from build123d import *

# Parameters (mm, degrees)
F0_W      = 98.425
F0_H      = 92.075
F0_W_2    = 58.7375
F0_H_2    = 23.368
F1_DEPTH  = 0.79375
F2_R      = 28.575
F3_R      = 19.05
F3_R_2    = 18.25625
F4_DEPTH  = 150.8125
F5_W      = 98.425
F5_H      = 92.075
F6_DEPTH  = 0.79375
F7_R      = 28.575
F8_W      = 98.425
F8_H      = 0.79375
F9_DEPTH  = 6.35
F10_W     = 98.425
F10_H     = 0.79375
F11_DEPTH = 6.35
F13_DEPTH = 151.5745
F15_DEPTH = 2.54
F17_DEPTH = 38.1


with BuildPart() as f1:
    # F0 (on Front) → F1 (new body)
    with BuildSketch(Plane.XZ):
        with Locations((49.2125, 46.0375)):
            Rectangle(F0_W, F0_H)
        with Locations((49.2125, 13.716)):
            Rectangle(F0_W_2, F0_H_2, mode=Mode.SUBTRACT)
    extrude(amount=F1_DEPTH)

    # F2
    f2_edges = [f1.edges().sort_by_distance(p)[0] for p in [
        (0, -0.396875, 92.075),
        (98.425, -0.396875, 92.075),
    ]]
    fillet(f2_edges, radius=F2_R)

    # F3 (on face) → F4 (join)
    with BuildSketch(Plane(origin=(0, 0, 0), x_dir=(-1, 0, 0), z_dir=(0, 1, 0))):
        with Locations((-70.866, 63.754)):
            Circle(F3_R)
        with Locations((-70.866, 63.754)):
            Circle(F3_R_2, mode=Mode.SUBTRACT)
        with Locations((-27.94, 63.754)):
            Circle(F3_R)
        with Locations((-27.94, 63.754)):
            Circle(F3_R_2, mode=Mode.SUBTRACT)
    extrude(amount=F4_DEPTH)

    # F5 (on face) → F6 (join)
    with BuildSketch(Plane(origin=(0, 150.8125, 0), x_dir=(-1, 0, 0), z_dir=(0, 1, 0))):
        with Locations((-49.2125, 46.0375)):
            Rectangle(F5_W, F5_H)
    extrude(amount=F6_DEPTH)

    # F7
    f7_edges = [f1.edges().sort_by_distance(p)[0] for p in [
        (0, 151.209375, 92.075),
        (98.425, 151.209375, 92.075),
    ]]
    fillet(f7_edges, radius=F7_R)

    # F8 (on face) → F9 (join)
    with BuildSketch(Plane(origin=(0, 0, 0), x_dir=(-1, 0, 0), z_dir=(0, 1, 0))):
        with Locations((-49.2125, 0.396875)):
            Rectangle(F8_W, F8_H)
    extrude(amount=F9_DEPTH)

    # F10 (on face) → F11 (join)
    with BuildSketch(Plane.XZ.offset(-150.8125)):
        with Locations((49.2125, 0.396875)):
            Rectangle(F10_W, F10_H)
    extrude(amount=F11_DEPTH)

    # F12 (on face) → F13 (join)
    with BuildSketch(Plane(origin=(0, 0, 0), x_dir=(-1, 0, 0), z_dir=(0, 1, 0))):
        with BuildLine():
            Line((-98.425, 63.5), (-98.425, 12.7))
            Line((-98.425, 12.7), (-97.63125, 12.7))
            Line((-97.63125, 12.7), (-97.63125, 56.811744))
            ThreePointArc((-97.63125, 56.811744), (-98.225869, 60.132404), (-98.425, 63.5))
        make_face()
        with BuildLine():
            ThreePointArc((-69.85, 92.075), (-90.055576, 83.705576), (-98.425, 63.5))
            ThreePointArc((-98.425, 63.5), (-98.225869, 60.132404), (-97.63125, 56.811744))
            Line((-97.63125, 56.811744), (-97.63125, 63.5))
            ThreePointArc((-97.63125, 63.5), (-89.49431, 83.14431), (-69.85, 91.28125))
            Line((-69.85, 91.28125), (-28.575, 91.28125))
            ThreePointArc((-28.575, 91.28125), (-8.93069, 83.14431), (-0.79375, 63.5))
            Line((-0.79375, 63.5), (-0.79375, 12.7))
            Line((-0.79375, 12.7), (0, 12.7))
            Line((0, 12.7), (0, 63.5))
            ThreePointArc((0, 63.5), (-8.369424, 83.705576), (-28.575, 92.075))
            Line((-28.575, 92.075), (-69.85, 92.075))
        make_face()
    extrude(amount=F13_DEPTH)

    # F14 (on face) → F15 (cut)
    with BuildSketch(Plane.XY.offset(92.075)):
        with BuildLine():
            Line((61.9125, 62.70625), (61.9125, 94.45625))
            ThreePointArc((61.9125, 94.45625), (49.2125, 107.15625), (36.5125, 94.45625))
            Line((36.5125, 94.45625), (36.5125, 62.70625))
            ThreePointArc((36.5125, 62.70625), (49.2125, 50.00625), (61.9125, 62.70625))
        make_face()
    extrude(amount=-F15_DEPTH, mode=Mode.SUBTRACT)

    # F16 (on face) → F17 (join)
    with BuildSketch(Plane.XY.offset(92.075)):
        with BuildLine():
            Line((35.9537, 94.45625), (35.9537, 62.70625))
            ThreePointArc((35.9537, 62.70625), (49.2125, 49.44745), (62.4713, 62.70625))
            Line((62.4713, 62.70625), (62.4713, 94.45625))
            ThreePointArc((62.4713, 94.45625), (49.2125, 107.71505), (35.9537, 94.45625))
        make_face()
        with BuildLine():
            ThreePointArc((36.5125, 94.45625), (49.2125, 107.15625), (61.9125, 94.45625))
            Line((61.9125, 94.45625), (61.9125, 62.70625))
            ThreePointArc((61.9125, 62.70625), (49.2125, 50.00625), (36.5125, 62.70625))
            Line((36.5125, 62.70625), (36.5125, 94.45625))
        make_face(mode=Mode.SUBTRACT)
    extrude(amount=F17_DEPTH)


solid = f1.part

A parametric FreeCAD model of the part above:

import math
import FreeCAD as App
import Part
import Sketcher

V = App.Vector
Q = App.Units.Quantity


def edges_at(feature, points):
    """Names of the edges that pass closest to the given points."""
    edges = feature.Shape.Edges
    near = lambda p: min(range(len(edges)), key=lambda i: edges[i].distToShape(Part.Vertex(*p))[0])
    return sorted({f"Edge{near(p) + 1}" for p in points})

doc = App.newDocument("Part")
body = doc.addObject("PartDesign::Body", "Body")

sketch1 = doc.addObject("Sketcher::SketchObject", "Sketch")
body.addObject(sketch1)
sketch1.AttachmentSupport = (doc.XZ_Plane, [""])
sketch1.MapMode = "FlatFace"
sketch1.addGeometry([
    Part.LineSegment(V(0, 92.075, 0), V(0, 0, 0)),
    Part.LineSegment(V(0, 0, 0), V(98.425, 0, 0)),
    Part.LineSegment(V(98.425, 0, 0), V(98.425, 92.075, 0)),
    Part.LineSegment(V(98.425, 92.075, 0), V(0, 92.075, 0)),
    Part.LineSegment(V(78.58125, 2.032, 0), V(19.84375, 2.032, 0)),
    Part.LineSegment(V(19.84375, 2.032, 0), V(19.84375, 25.4, 0)),
    Part.LineSegment(V(19.84375, 25.4, 0), V(78.58125, 25.4, 0)),
    Part.LineSegment(V(78.58125, 25.4, 0), V(78.58125, 2.032, 0)),
], False)
sketch1.addConstraint([
    Sketcher.Constraint("Coincident", 0, 2, 1, 1),
    Sketcher.Constraint("Coincident", 1, 2, 2, 1),
    Sketcher.Constraint("Coincident", 2, 2, 3, 1),
    Sketcher.Constraint("Coincident", 3, 2, 0, 1),
    Sketcher.Constraint("Coincident", 4, 2, 5, 1),
    Sketcher.Constraint("Coincident", 5, 2, 6, 1),
    Sketcher.Constraint("Coincident", 6, 2, 7, 1),
    Sketcher.Constraint("Coincident", 7, 2, 4, 1),
    Sketcher.Constraint("Vertical", 0),
    Sketcher.Constraint("Horizontal", 1),
    Sketcher.Constraint("Vertical", 2),
    Sketcher.Constraint("Horizontal", 3),
    Sketcher.Constraint("Horizontal", 4),
    Sketcher.Constraint("Vertical", 5),
    Sketcher.Constraint("Horizontal", 6),
    Sketcher.Constraint("Vertical", 7),
    Sketcher.Constraint("Coincident", 0, 2, -1, 1),
    Sketcher.Constraint("DistanceY", -1, 1, 5, 2, Q("1 in")),
    Sketcher.Constraint("DistanceY", 5, 1, 5, 2, Q("0.92 in")),
    Sketcher.Constraint("DistanceX", 1, 1, 1, 2, Q("3.875 in")),
    Sketcher.Constraint("DistanceX", 4, 2, 4, 1, Q("2.3125 in")),
    Sketcher.Constraint("DistanceY", 0, 2, 0, 1, Q("3.625 in")),
    Sketcher.Constraint("DistanceX", -1, 1, 4, 2, Q("0.78125 in")),
])
pad1 = doc.addObject("PartDesign::Pad", "Pad")
body.addObject(pad1)
pad1.Profile = sketch1
pad1.Length = Q("0.03125 in")
doc.recompute()

fillet = doc.addObject("PartDesign::Fillet", "Fillet")
body.addObject(fillet)
fillet.Base = (pad1, edges_at(pad1, [(0, -0.397, 92.075), (98.425, -0.397, 92.075)]))
fillet.Radius = Q("1.125 in")

sketch2 = doc.addObject("Sketcher::SketchObject", "Sketch001")
body.addObject(sketch2)
sketch2.AttachmentSupport = (doc.XZ_Plane, [""])
sketch2.MapMode = "FlatFace"
sketch2.addGeometry([
    Part.Circle(V(70.866, 63.754, 0), V(0, 0, 1), 19.05),
    Part.Circle(V(70.866, 63.754, 0), V(0, 0, 1), 18.25625),
    Part.Circle(V(27.94, 63.754, 0), V(0, 0, 1), 19.05),
    Part.Circle(V(27.94, 63.754, 0), V(0, 0, 1), 18.25625),
], False)
sketch2.addConstraint([
    Sketcher.Constraint("Coincident", 1, 3, 0, 3),
    Sketcher.Constraint("Coincident", 3, 3, 2, 3),
    Sketcher.Constraint("Equal", 0, 2),
    Sketcher.Constraint("Equal", 1, 3),
    Sketcher.Constraint("Horizontal", 1, 3, 2, 3),
    Sketcher.Constraint("Diameter", 0, Q("1.5 in")),
    Sketcher.Constraint("Diameter", 1, Q("1.4375 in")),
    Sketcher.Constraint("DistanceX", -1, 1, 2, 3, Q("1.1 in")),
    Sketcher.Constraint("DistanceX", -1, 1, 0, 3, Q("2.79 in")),
    Sketcher.Constraint("DistanceY", -1, 1, 0, 3, Q("2.51 in")),
])
pad2 = doc.addObject("PartDesign::Pad", "Pad001")
body.addObject(pad2)
pad2.Profile = sketch2
pad2.Length = Q("5.9375 in")
pad2.Reversed = True

sketch3 = doc.addObject("Sketcher::SketchObject", "Sketch002")
body.addObject(sketch3)
sketch3.AttachmentSupport = (doc.XZ_Plane, [""])
sketch3.MapMode = "FlatFace"
sketch3.AttachmentOffset = App.Placement(V(0, 0, -5.9375 * 25.4), App.Rotation())
sketch3.addGeometry([
    Part.LineSegment(V(98.425, 92.075, 0), V(98.425, 0, 0)),
    Part.LineSegment(V(98.425, 0, 0), V(0, 0, 0)),
    Part.LineSegment(V(0, 0, 0), V(0, 92.075, 0)),
    Part.LineSegment(V(0, 92.075, 0), V(98.425, 92.075, 0)),
], False)
sketch3.addConstraint([
    Sketcher.Constraint("Coincident", 0, 2, 1, 1),
    Sketcher.Constraint("Coincident", 1, 2, 2, 1),
    Sketcher.Constraint("Coincident", 2, 2, 3, 1),
    Sketcher.Constraint("Coincident", 3, 2, 0, 1),
    Sketcher.Constraint("Vertical", 0),
    Sketcher.Constraint("Horizontal", 1),
    Sketcher.Constraint("Vertical", 2),
    Sketcher.Constraint("Horizontal", 3),
    Sketcher.Constraint("Coincident", 1, 2, -1, 1),
    Sketcher.Constraint("DistanceX", 1, 2, 1, 1, Q("3.875 in")),
    Sketcher.Constraint("DistanceY", 0, 2, 0, 1, Q("3.625 in")),
])
pad3 = doc.addObject("PartDesign::Pad", "Pad002")
body.addObject(pad3)
pad3.Profile = sketch3
pad3.Length = Q("0.03125 in")
pad3.Reversed = True
doc.recompute()

fillet2 = doc.addObject("PartDesign::Fillet", "Fillet001")
body.addObject(fillet2)
fillet2.Base = (pad3, edges_at(pad3, [(0, 151.209, 92.075), (98.425, 151.209, 92.075)]))
fillet2.Radius = Q("1.125 in")

sketch4 = doc.addObject("Sketcher::SketchObject", "Sketch003")
body.addObject(sketch4)
sketch4.AttachmentSupport = (doc.XZ_Plane, [""])
sketch4.MapMode = "FlatFace"
sketch4.addGeometry([
    Part.LineSegment(V(98.425, 0.79375, 0), V(98.425, 0, 0)),
    Part.LineSegment(V(98.425, 0, 0), V(0, 0, 0)),
    Part.LineSegment(V(0, 0, 0), V(0, 0.79375, 0)),
    Part.LineSegment(V(0, 0.79375, 0), V(98.425, 0.79375, 0)),
], False)
sketch4.addConstraint([
    Sketcher.Constraint("Coincident", 0, 2, 1, 1),
    Sketcher.Constraint("Coincident", 1, 2, 2, 1),
    Sketcher.Constraint("Coincident", 2, 2, 3, 1),
    Sketcher.Constraint("Coincident", 3, 2, 0, 1),
    Sketcher.Constraint("Vertical", 0),
    Sketcher.Constraint("Horizontal", 1),
    Sketcher.Constraint("Vertical", 2),
    Sketcher.Constraint("Horizontal", 3),
    Sketcher.Constraint("Coincident", 1, 2, -1, 1),
    Sketcher.Constraint("DistanceX", 1, 2, 1, 1, Q("3.875 in")),
    Sketcher.Constraint("DistanceY", 0, 2, 0, 1, Q("0.03125 in")),
])
pad4 = doc.addObject("PartDesign::Pad", "Pad003")
body.addObject(pad4)
pad4.Profile = sketch4
pad4.Length = Q("0.25 in")
pad4.Reversed = True

sketch5 = doc.addObject("Sketcher::SketchObject", "Sketch004")
body.addObject(sketch5)
sketch5.AttachmentSupport = (doc.XZ_Plane, [""])
sketch5.MapMode = "FlatFace"
sketch5.AttachmentOffset = App.Placement(V(0, 0, -5.9375 * 25.4), App.Rotation())
sketch5.addGeometry([
    Part.LineSegment(V(0, 0.79375, 0), V(0, 0, 0)),
    Part.LineSegment(V(0, 0, 0), V(98.425, 0, 0)),
    Part.LineSegment(V(98.425, 0, 0), V(98.425, 0.79375, 0)),
    Part.LineSegment(V(98.425, 0.79375, 0), V(0, 0.79375, 0)),
], False)
sketch5.addConstraint([
    Sketcher.Constraint("Coincident", 0, 2, 1, 1),
    Sketcher.Constraint("Coincident", 1, 2, 2, 1),
    Sketcher.Constraint("Coincident", 2, 2, 3, 1),
    Sketcher.Constraint("Coincident", 3, 2, 0, 1),
    Sketcher.Constraint("Vertical", 0),
    Sketcher.Constraint("Horizontal", 1),
    Sketcher.Constraint("Vertical", 2),
    Sketcher.Constraint("Horizontal", 3),
    Sketcher.Constraint("Coincident", 0, 2, -1, 1),
    Sketcher.Constraint("DistanceX", 1, 1, 1, 2, Q("3.875 in")),
    Sketcher.Constraint("DistanceY", 0, 2, 0, 1, Q("0.03125 in")),
])
pad5 = doc.addObject("PartDesign::Pad", "Pad004")
body.addObject(pad5)
pad5.Profile = sketch5
pad5.Length = Q("0.25 in")

sketch6 = doc.addObject("Sketcher::SketchObject", "Sketch005")
body.addObject(sketch6)
sketch6.AttachmentSupport = (doc.XZ_Plane, [""])
sketch6.MapMode = "FlatFace"
sketch6.addGeometry([
    Part.LineSegment(V(98.425, 63.5, 0), V(98.425, 12.7, 0)),
    Part.LineSegment(V(98.425, 12.7, 0), V(97.63125, 12.7, 0)),
    Part.LineSegment(V(97.63125, 12.7, 0), V(97.63125, 63.5, 0)),
    Part.ArcOfCircle(Part.Circle(V(69.849999, 63.499999, 0), V(0, 0, 1), 27.781251), math.radians(0.000002), math.radians(89.999998)),
    Part.LineSegment(V(69.85, 91.28125, 0), V(28.575, 91.28125, 0)),
    Part.ArcOfCircle(Part.Circle(V(28.575001, 63.499999, 0), V(0, 0, 1), 27.781251), math.radians(90.000002), math.radians(179.999998)),
    Part.LineSegment(V(0.79375, 63.5, 0), V(0.79375, 12.7, 0)),
    Part.LineSegment(V(0.79375, 12.7, 0), V(0, 12.7, 0)),
    Part.LineSegment(V(0, 12.7, 0), V(0, 63.5, 0)),
    Part.ArcOfCircle(Part.Circle(V(28.575001, 63.499999, 0), V(0, 0, 1), 28.575001), math.radians(90.000002), math.radians(179.999998)),
    Part.LineSegment(V(28.575, 92.075, 0), V(69.85, 92.075, 0)),
    Part.ArcOfCircle(Part.Circle(V(69.849999, 63.499999, 0), V(0, 0, 1), 28.575001), math.radians(0.000002), math.radians(89.999998)),
], False)
sketch6.addConstraint([
    Sketcher.Constraint("Coincident", 0, 2, 1, 1),
    Sketcher.Constraint("Coincident", 1, 2, 2, 1),
    Sketcher.Constraint("Tangent", 2, 2, 3, 1),
    Sketcher.Constraint("Tangent", 3, 2, 4, 1),
    Sketcher.Constraint("Tangent", 4, 2, 5, 1),
    Sketcher.Constraint("Tangent", 5, 2, 6, 1),
    Sketcher.Constraint("Coincident", 6, 2, 7, 1),
    Sketcher.Constraint("Coincident", 7, 2, 8, 1),
    Sketcher.Constraint("Tangent", 8, 2, 9, 2),
    Sketcher.Constraint("Tangent", 9, 1, 10, 1),
    Sketcher.Constraint("Tangent", 10, 2, 11, 2),
    Sketcher.Constraint("Tangent", 11, 1, 0, 1),
    Sketcher.Constraint("Vertical", 0),
    Sketcher.Constraint("Horizontal", 1),
    Sketcher.Constraint("Vertical", 2),
    Sketcher.Constraint("Horizontal", 4),
    Sketcher.Constraint("Vertical", 6),
    Sketcher.Constraint("Horizontal", 7),
    Sketcher.Constraint("Vertical", 8),
    Sketcher.Constraint("Horizontal", 10),
    Sketcher.Constraint("Coincident", 9, 3, 5, 3),
    Sketcher.Constraint("Coincident", 11, 3, 3, 3),
    Sketcher.Constraint("Equal", 3, 5),
    Sketcher.Constraint("PointOnObject", 7, 2, -2),
    Sketcher.Constraint("Horizontal", 1, 2, 6, 2),
    Sketcher.Constraint("DistanceY", 0, 2, 0, 1, Q("2 in")),
    Sketcher.Constraint("Radius", 3, Q("1.09375 in")),
    Sketcher.Constraint("Radius", 9, Q("1.125 in")),
    Sketcher.Constraint("DistanceY", -1, 1, 3, 3, Q("2.5 in")),
    Sketcher.Constraint("DistanceX", 4, 2, 4, 1, Q("1.625 in")),
])
pad6 = doc.addObject("PartDesign::Pad", "Pad005")
body.addObject(pad6)
pad6.Profile = sketch6
pad6.Length = Q("5.9675 in")
pad6.Reversed = True

sketch7 = doc.addObject("Sketcher::SketchObject", "Sketch006")
body.addObject(sketch7)
sketch7.AttachmentSupport = (doc.XY_Plane, [""])
sketch7.MapMode = "FlatFace"
sketch7.AttachmentOffset = App.Placement(V(0, 0, 3.625 * 25.4), App.Rotation())
sketch7.addGeometry([
    Part.LineSegment(V(61.9125, 62.70625, 0), V(61.9125, 94.45625, 0)),
    Part.ArcOfCircle(Part.Circle(V(49.2125, 94.45625, 0), V(0, 0, 1), 12.7), math.radians(0), math.radians(180)),
    Part.LineSegment(V(36.5125, 94.45625, 0), V(36.5125, 62.70625, 0)),
    Part.ArcOfCircle(Part.Circle(V(49.2125, 62.70625, 0), V(0, 0, 1), 12.7), math.radians(180), math.radians(360)),
], False)
sketch7.addConstraint([
    Sketcher.Constraint("Tangent", 0, 2, 1, 1),
    Sketcher.Constraint("Tangent", 1, 2, 2, 1),
    Sketcher.Constraint("Tangent", 2, 2, 3, 1),
    Sketcher.Constraint("Tangent", 3, 2, 0, 1),
    Sketcher.Constraint("Vertical", 0),
    Sketcher.Constraint("Vertical", 2),
    Sketcher.Constraint("Radius", 1, Q("0.5 in")),
    Sketcher.Constraint("DistanceY", 0, 1, 0, 2, Q("1.25 in")),
    Sketcher.Constraint("DistanceX", -1, 1, 1, 3, Q("1.9375 in")),
    Sketcher.Constraint("DistanceY", -1, 1, 1, 3, Q("3.71875 in")),
])
pocket1 = doc.addObject("PartDesign::Pocket", "Pocket")
body.addObject(pocket1)
pocket1.Profile = sketch7
pocket1.Length = Q("0.1 in")

sketch8 = doc.addObject("Sketcher::SketchObject", "Sketch007")
body.addObject(sketch8)
sketch8.AttachmentSupport = (doc.XY_Plane, [""])
sketch8.MapMode = "FlatFace"
sketch8.AttachmentOffset = App.Placement(V(0, 0, 3.625 * 25.4), App.Rotation())
sketch8.addGeometry([
    Part.LineSegment(V(35.9537, 94.45625, 0), V(35.9537, 62.70625, 0)),
    Part.ArcOfCircle(Part.Circle(V(49.2125, 62.70625, 0), V(0, 0, 1), 13.2588), math.radians(180), math.radians(360)),
    Part.LineSegment(V(62.4713, 62.70625, 0), V(62.4713, 94.45625, 0)),
    Part.ArcOfCircle(Part.Circle(V(49.2125, 94.45625, 0), V(0, 0, 1), 13.2588), math.radians(0), math.radians(180)),
    Part.LineSegment(V(36.5125, 62.70625, 0), V(36.5125, 94.45625, 0)),
    Part.ArcOfCircle(Part.Circle(V(49.2125, 94.45625, 0), V(0, 0, 1), 12.7), math.radians(0), math.radians(180)),
    Part.LineSegment(V(61.9125, 94.45625, 0), V(61.9125, 62.70625, 0)),
    Part.ArcOfCircle(Part.Circle(V(49.2125, 62.70625, 0), V(0, 0, 1), 12.7), math.radians(180), math.radians(360)),
], False)
sketch8.addConstraint([
    Sketcher.Constraint("Tangent", 0, 2, 1, 1),
    Sketcher.Constraint("Tangent", 1, 2, 2, 1),
    Sketcher.Constraint("Tangent", 2, 2, 3, 1),
    Sketcher.Constraint("Tangent", 3, 2, 0, 1),
    Sketcher.Constraint("Tangent", 4, 2, 5, 2),
    Sketcher.Constraint("Tangent", 5, 1, 6, 1),
    Sketcher.Constraint("Tangent", 6, 2, 7, 2),
    Sketcher.Constraint("Tangent", 7, 1, 4, 1),
    Sketcher.Constraint("Vertical", 0),
    Sketcher.Constraint("Vertical", 2),
    Sketcher.Constraint("Vertical", 4),
    Sketcher.Constraint("Vertical", 6),
    Sketcher.Constraint("Coincident", 5, 3, 3, 3),
    Sketcher.Constraint("Horizontal", 7, 3, 0, 2),
    Sketcher.Constraint("Radius", 5, Q("0.5 in")),
    Sketcher.Constraint("Radius", 1, Q("0.522 in")),
    Sketcher.Constraint("DistanceY", 0, 2, 0, 1, Q("1.25 in")),
    Sketcher.Constraint("DistanceX", -1, 1, 1, 3, Q("1.9375 in")),
    Sketcher.Constraint("DistanceY", -1, 1, 1, 3, Q("2.46875 in")),
])
pad7 = doc.addObject("PartDesign::Pad", "Pad006")
body.addObject(pad7)
pad7.Profile = sketch8
pad7.Length = Q("1.5 in")

doc.recompute()
